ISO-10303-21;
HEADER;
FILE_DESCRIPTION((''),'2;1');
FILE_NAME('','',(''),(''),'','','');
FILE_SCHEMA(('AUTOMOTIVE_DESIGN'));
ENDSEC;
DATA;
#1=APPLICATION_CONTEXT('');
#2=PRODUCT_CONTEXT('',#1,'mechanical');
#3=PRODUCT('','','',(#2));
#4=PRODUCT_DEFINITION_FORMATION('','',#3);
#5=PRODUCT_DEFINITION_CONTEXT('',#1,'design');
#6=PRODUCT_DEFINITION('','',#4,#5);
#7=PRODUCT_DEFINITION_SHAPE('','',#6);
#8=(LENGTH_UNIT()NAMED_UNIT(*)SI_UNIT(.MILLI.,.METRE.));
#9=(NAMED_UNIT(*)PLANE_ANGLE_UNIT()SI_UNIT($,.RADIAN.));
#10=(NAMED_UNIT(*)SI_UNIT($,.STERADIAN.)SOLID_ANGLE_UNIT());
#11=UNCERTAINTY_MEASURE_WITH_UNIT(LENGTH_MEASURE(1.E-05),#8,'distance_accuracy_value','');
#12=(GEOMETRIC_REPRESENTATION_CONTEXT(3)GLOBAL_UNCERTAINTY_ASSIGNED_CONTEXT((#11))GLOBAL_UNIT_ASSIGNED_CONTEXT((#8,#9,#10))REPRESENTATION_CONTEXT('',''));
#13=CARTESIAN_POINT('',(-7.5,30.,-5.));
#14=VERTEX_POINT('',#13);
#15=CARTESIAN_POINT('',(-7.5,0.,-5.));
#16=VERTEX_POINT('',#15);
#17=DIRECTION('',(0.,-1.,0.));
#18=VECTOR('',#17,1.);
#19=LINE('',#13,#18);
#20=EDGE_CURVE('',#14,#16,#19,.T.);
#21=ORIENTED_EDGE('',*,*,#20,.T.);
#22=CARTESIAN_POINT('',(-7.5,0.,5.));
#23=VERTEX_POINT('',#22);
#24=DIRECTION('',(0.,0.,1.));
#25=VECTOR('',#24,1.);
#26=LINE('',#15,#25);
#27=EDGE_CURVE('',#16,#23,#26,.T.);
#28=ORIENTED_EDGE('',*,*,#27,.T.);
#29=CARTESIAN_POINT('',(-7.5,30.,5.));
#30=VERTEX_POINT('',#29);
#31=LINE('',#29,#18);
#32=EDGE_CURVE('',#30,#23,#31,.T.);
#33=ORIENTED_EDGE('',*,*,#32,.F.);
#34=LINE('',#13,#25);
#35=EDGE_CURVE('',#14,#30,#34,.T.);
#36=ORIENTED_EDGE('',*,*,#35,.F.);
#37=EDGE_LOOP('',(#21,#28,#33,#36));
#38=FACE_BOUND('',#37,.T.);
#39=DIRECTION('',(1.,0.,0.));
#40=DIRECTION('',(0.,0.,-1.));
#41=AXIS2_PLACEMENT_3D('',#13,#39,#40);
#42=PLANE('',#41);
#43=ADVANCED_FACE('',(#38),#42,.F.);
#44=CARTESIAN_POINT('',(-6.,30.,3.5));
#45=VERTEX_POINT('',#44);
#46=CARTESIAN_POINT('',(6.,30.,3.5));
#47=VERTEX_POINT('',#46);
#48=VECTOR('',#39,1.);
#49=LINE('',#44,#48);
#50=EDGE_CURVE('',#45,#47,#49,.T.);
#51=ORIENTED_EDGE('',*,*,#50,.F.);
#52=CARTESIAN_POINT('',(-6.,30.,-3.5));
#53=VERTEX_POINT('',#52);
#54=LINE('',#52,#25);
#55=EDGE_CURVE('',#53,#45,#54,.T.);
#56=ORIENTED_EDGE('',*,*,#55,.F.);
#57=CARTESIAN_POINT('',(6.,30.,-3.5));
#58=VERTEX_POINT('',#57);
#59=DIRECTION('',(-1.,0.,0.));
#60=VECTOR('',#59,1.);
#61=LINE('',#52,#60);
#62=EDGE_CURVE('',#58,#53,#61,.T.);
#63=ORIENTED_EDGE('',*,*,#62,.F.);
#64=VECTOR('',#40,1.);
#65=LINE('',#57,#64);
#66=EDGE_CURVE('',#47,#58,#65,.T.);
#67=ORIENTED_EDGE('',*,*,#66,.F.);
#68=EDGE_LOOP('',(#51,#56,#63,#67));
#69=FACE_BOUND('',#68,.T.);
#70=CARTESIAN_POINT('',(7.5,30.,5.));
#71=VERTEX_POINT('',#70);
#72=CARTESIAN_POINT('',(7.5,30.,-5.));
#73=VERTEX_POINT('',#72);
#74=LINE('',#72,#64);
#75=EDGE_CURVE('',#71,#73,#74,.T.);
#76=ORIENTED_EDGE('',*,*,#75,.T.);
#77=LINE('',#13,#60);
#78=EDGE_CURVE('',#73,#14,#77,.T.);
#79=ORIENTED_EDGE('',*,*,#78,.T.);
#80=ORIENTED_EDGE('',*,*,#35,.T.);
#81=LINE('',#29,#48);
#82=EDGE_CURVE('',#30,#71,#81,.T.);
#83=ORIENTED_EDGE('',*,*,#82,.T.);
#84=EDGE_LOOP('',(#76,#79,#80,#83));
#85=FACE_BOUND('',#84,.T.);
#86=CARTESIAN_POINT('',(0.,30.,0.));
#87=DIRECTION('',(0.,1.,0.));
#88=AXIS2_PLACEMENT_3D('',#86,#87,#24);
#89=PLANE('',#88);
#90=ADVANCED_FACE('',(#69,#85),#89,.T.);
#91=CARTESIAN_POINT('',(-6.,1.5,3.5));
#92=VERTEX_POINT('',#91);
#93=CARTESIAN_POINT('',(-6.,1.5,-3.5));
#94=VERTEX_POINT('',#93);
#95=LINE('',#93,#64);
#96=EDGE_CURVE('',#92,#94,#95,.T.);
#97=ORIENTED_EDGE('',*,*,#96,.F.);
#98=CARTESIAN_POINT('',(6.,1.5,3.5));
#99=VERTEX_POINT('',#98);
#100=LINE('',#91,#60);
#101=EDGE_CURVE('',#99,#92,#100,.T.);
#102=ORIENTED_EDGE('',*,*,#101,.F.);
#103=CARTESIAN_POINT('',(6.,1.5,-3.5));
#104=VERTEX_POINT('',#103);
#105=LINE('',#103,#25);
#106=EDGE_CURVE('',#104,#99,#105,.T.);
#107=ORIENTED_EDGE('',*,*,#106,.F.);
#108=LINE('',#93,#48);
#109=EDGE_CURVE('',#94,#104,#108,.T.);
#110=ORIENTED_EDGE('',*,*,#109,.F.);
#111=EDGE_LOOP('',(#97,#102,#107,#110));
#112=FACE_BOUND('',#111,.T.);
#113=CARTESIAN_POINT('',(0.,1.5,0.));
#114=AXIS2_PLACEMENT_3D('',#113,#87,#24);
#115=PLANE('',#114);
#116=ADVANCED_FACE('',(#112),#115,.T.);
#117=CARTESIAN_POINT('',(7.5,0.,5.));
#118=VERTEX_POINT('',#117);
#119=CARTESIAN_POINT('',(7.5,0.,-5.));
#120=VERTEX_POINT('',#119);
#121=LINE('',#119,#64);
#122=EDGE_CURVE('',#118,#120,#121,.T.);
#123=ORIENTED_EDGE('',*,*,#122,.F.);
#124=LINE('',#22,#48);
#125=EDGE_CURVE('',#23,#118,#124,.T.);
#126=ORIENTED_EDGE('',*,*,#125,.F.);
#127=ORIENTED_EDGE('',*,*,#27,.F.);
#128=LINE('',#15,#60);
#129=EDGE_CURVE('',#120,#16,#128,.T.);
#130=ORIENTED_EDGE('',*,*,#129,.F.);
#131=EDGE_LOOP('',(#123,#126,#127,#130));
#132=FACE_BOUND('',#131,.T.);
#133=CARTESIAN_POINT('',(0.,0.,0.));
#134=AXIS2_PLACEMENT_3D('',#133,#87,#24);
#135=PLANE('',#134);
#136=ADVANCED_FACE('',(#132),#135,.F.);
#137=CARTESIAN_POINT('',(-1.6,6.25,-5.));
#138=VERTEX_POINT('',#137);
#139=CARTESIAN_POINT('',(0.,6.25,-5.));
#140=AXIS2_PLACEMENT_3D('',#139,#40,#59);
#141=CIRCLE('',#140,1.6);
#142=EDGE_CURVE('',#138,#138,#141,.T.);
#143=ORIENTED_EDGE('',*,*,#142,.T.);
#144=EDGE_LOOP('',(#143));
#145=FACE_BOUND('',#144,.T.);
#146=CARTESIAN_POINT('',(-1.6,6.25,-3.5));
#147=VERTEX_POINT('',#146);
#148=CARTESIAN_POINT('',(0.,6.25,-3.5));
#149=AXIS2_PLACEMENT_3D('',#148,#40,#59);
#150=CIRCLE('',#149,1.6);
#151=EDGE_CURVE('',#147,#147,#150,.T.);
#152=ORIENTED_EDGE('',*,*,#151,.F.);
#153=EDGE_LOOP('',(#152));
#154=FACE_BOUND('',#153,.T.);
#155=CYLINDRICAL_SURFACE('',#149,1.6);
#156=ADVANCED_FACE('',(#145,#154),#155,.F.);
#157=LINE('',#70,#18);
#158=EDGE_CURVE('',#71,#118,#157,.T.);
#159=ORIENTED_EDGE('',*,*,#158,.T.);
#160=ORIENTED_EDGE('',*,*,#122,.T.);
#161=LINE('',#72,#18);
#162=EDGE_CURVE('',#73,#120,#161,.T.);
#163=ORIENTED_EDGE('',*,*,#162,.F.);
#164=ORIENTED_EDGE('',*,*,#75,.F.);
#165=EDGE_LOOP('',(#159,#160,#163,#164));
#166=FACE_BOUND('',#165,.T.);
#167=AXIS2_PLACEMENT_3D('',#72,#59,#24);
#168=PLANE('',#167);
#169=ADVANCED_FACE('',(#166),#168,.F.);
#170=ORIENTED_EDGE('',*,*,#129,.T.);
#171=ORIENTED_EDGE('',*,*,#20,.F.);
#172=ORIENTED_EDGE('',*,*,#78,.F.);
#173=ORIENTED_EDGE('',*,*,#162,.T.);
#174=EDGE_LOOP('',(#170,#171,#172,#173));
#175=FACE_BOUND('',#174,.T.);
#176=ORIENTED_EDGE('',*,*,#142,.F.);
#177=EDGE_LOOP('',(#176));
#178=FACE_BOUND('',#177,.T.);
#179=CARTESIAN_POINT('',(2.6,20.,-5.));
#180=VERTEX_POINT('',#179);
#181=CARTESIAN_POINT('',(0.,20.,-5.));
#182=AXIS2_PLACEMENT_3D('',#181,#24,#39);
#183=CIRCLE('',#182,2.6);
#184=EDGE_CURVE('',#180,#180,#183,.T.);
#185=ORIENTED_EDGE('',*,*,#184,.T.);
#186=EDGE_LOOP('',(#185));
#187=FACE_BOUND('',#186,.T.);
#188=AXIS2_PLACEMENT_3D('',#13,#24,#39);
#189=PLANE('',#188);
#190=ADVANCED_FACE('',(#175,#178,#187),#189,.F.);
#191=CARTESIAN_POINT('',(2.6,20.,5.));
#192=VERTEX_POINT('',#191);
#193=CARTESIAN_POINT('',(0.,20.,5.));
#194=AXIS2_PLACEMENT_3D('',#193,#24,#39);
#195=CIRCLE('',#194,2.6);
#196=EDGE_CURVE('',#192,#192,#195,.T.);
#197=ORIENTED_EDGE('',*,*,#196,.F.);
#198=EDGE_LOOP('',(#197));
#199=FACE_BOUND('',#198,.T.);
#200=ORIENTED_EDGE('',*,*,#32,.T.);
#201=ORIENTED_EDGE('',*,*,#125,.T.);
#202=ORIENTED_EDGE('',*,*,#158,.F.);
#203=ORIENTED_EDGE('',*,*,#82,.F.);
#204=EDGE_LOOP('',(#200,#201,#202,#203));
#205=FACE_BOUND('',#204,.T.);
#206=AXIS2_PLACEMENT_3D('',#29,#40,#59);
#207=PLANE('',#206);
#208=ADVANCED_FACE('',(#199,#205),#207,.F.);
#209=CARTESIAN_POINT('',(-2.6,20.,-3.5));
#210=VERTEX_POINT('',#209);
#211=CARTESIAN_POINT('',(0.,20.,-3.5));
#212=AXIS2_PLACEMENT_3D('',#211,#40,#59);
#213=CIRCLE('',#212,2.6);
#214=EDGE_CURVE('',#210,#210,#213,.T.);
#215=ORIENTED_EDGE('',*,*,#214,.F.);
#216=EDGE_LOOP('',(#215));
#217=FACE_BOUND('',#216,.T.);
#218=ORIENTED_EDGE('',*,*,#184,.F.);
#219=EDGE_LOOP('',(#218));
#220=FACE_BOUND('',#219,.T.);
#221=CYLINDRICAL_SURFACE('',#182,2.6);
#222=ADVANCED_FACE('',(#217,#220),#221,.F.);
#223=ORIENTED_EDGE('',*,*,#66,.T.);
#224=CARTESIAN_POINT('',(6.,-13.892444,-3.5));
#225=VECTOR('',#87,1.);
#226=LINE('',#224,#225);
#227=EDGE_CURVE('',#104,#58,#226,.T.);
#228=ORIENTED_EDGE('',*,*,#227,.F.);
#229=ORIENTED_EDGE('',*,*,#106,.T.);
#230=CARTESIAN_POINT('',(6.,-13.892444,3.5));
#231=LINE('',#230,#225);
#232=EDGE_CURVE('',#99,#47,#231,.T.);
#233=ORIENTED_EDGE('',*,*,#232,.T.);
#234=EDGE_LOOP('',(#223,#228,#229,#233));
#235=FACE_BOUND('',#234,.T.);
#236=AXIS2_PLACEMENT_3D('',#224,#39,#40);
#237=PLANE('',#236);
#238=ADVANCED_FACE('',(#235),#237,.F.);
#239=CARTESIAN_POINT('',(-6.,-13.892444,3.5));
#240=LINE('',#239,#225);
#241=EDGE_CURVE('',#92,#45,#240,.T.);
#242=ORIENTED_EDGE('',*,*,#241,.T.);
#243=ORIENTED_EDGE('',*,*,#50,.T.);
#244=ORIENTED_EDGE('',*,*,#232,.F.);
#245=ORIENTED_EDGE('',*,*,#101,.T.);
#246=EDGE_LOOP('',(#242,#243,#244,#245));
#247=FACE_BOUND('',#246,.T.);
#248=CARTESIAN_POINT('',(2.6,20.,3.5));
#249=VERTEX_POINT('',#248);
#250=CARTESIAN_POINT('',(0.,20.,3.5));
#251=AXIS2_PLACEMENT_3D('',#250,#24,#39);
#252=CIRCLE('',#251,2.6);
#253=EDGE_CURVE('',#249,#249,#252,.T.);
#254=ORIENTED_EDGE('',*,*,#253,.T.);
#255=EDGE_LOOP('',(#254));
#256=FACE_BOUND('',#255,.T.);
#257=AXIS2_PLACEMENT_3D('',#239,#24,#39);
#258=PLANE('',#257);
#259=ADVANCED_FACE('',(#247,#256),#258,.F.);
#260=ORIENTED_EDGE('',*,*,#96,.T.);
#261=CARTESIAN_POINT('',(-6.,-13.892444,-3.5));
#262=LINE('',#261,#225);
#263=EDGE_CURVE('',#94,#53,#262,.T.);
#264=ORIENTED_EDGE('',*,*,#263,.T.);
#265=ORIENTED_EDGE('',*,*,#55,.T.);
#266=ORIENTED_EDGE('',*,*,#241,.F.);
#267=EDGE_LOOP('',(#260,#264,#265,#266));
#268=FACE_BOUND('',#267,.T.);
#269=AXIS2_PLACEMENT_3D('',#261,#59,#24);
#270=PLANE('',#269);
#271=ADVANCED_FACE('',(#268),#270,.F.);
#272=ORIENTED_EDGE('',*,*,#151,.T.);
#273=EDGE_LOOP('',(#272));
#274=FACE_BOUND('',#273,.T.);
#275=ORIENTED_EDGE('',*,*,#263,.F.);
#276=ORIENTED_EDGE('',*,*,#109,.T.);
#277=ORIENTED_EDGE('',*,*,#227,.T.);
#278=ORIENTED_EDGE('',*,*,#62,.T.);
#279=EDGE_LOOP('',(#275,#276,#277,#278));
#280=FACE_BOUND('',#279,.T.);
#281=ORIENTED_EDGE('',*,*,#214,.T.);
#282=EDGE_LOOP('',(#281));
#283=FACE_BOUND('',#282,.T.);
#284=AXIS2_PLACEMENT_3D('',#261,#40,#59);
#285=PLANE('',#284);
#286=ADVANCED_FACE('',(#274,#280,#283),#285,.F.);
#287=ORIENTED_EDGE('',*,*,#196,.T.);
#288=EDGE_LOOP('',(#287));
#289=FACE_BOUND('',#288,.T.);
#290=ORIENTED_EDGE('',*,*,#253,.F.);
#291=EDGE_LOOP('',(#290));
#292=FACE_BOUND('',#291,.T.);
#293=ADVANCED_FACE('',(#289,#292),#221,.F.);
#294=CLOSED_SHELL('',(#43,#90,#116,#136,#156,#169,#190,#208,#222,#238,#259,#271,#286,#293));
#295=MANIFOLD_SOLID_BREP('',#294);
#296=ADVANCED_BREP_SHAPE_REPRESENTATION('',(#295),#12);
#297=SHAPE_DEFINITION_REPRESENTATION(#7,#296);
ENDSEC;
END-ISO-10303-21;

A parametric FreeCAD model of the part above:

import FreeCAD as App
import Part
import Sketcher
from FreeCAD import Vector

doc = App.newDocument("Part")
body = doc.addObject("PartDesign::Body", "Body")

sketch1 = doc.addObject("Sketcher::SketchObject", "Sketch")
body.addObject(sketch1)
sketch1.AttachmentSupport = (doc.XZ_Plane, [""])
sketch1.MapMode = "FlatFace"
sketch1.addGeometry([
    Part.LineSegment(Vector(-8, -5, 0), Vector(-8, 5, 0)),
    Part.LineSegment(Vector(-8, 5, 0), Vector(8, 5, 0)),
    Part.LineSegment(Vector(8, 5, 0), Vector(8, -5, 0)),
    Part.LineSegment(Vector(8, -5, 0), Vector(-8, -5, 0)),
], False)
sketch1.addConstraint([
    Sketcher.Constraint("Coincident", 0, 2, 1, 1),
    Sketcher.Constraint("Coincident", 1, 2, 2, 1),
    Sketcher.Constraint("Coincident", 2, 2, 3, 1),
    Sketcher.Constraint("Coincident", 3, 2, 0, 1),
    Sketcher.Constraint("Vertical", 0),
    Sketcher.Constraint("Horizontal", 1),
    Sketcher.Constraint("Vertical", 2),
    Sketcher.Constraint("Horizontal", 3),
    Sketcher.Constraint("Symmetric", 0, 2, 2, 2, -1, 1),
    Sketcher.Constraint("DistanceX", 1, 1, 1, 2, 15.0),
    Sketcher.Constraint("DistanceY", 0, 1, 0, 2, 10.0),
])
pad1 = doc.addObject("PartDesign::Pad", "Pad")
body.addObject(pad1)
pad1.Profile = sketch1
pad1.Length = 30
pad1.Reversed = True

sketch2 = doc.addObject("Sketcher::SketchObject", "Sketch001")
body.addObject(sketch2)
sketch2.AttachmentSupport = (doc.XZ_Plane, [""])
sketch2.MapMode = "FlatFace"
sketch2.AttachmentOffset = App.Placement(Vector(0, 0, -30), App.Rotation())
sketch2.addGeometry([
    Part.LineSegment(Vector(-6, -4, 0), Vector(-6, 4, 0)),
    Part.LineSegment(Vector(-6, 4, 0), Vector(6, 4, 0)),
    Part.LineSegment(Vector(6, 4, 0), Vector(6, -4, 0)),
    Part.LineSegment(Vector(6, -4, 0), Vector(-6, -4, 0)),
], False)
sketch2.addConstraint([
    Sketcher.Constraint("Coincident", 0, 2, 1, 1),
    Sketcher.Constraint("Coincident", 1, 2, 2, 1),
    Sketcher.Constraint("Coincident", 2, 2, 3, 1),
    Sketcher.Constraint("Coincident", 3, 2, 0, 1),
    Sketcher.Constraint("Vertical", 0),
    Sketcher.Constraint("Horizontal", 1),
    Sketcher.Constraint("Vertical", 2),
    Sketcher.Constraint("Horizontal", 3),
    Sketcher.Constraint("Symmetric", 0, 2, 2, 2, -1, 1),
    Sketcher.Constraint("DistanceX", 1, 1, 1, 2, 12.0),
    Sketcher.Constraint("DistanceY", 0, 1, 0, 2, 7.0),
])
pocket1 = doc.addObject("PartDesign::Pocket", "Pocket")
body.addObject(pocket1)
pocket1.Profile = sketch2
pocket1.Length = 28.5
pocket1.Reversed = True

sketch3 = doc.addObject("Sketcher::SketchObject", "Sketch002")
body.addObject(sketch3)
sketch3.AttachmentSupport = (doc.XY_Plane, [""])
sketch3.MapMode = "FlatFace"
sketch3.AttachmentOffset = App.Placement(Vector(0, 0, 5), App.Rotation())
sketch3.addGeometry(Part.Circle(Vector(0, 20, 0), Vector(0, 0, 1), 2.6), False)
sketch3.addConstraint([
    Sketcher.Constraint("PointOnObject", 0, 3, -2),
    Sketcher.Constraint("Diameter", 0, 5.2),
    Sketcher.Constraint("DistanceY", -1, 1, 0, 3, 20.0),
])
pocket2 = doc.addObject("PartDesign::Pocket", "Pocket001")
body.addObject(pocket2)
pocket2.Profile = sketch3
pocket2.Type = "ThroughAll"

sketch4 = doc.addObject("Sketcher::SketchObject", "Sketch003")
body.addObject(sketch4)
sketch4.AttachmentSupport = (doc.XY_Plane, [""])
sketch4.MapMode = "FlatFace"
sketch4.AttachmentOffset = App.Placement(Vector(0, 0, -5), App.Rotation())
sketch4.addGeometry(Part.Circle(Vector(0, 6.2, 0), Vector(0, 0, 1), 1.6), False)
sketch4.addConstraint([
    Sketcher.Constraint("PointOnObject", 0, 3, -2),
    Sketcher.Constraint("Diameter", 0, 3.2),
    Sketcher.Constraint("DistanceY", -1, 1, 0, 3, 6.25),
])
pocket3 = doc.addObject("PartDesign::Pocket", "Pocket002")
body.addObject(pocket3)
pocket3.Profile = sketch4
pocket3.Length = 1.5
pocket3.Reversed = True

doc.recompute()
